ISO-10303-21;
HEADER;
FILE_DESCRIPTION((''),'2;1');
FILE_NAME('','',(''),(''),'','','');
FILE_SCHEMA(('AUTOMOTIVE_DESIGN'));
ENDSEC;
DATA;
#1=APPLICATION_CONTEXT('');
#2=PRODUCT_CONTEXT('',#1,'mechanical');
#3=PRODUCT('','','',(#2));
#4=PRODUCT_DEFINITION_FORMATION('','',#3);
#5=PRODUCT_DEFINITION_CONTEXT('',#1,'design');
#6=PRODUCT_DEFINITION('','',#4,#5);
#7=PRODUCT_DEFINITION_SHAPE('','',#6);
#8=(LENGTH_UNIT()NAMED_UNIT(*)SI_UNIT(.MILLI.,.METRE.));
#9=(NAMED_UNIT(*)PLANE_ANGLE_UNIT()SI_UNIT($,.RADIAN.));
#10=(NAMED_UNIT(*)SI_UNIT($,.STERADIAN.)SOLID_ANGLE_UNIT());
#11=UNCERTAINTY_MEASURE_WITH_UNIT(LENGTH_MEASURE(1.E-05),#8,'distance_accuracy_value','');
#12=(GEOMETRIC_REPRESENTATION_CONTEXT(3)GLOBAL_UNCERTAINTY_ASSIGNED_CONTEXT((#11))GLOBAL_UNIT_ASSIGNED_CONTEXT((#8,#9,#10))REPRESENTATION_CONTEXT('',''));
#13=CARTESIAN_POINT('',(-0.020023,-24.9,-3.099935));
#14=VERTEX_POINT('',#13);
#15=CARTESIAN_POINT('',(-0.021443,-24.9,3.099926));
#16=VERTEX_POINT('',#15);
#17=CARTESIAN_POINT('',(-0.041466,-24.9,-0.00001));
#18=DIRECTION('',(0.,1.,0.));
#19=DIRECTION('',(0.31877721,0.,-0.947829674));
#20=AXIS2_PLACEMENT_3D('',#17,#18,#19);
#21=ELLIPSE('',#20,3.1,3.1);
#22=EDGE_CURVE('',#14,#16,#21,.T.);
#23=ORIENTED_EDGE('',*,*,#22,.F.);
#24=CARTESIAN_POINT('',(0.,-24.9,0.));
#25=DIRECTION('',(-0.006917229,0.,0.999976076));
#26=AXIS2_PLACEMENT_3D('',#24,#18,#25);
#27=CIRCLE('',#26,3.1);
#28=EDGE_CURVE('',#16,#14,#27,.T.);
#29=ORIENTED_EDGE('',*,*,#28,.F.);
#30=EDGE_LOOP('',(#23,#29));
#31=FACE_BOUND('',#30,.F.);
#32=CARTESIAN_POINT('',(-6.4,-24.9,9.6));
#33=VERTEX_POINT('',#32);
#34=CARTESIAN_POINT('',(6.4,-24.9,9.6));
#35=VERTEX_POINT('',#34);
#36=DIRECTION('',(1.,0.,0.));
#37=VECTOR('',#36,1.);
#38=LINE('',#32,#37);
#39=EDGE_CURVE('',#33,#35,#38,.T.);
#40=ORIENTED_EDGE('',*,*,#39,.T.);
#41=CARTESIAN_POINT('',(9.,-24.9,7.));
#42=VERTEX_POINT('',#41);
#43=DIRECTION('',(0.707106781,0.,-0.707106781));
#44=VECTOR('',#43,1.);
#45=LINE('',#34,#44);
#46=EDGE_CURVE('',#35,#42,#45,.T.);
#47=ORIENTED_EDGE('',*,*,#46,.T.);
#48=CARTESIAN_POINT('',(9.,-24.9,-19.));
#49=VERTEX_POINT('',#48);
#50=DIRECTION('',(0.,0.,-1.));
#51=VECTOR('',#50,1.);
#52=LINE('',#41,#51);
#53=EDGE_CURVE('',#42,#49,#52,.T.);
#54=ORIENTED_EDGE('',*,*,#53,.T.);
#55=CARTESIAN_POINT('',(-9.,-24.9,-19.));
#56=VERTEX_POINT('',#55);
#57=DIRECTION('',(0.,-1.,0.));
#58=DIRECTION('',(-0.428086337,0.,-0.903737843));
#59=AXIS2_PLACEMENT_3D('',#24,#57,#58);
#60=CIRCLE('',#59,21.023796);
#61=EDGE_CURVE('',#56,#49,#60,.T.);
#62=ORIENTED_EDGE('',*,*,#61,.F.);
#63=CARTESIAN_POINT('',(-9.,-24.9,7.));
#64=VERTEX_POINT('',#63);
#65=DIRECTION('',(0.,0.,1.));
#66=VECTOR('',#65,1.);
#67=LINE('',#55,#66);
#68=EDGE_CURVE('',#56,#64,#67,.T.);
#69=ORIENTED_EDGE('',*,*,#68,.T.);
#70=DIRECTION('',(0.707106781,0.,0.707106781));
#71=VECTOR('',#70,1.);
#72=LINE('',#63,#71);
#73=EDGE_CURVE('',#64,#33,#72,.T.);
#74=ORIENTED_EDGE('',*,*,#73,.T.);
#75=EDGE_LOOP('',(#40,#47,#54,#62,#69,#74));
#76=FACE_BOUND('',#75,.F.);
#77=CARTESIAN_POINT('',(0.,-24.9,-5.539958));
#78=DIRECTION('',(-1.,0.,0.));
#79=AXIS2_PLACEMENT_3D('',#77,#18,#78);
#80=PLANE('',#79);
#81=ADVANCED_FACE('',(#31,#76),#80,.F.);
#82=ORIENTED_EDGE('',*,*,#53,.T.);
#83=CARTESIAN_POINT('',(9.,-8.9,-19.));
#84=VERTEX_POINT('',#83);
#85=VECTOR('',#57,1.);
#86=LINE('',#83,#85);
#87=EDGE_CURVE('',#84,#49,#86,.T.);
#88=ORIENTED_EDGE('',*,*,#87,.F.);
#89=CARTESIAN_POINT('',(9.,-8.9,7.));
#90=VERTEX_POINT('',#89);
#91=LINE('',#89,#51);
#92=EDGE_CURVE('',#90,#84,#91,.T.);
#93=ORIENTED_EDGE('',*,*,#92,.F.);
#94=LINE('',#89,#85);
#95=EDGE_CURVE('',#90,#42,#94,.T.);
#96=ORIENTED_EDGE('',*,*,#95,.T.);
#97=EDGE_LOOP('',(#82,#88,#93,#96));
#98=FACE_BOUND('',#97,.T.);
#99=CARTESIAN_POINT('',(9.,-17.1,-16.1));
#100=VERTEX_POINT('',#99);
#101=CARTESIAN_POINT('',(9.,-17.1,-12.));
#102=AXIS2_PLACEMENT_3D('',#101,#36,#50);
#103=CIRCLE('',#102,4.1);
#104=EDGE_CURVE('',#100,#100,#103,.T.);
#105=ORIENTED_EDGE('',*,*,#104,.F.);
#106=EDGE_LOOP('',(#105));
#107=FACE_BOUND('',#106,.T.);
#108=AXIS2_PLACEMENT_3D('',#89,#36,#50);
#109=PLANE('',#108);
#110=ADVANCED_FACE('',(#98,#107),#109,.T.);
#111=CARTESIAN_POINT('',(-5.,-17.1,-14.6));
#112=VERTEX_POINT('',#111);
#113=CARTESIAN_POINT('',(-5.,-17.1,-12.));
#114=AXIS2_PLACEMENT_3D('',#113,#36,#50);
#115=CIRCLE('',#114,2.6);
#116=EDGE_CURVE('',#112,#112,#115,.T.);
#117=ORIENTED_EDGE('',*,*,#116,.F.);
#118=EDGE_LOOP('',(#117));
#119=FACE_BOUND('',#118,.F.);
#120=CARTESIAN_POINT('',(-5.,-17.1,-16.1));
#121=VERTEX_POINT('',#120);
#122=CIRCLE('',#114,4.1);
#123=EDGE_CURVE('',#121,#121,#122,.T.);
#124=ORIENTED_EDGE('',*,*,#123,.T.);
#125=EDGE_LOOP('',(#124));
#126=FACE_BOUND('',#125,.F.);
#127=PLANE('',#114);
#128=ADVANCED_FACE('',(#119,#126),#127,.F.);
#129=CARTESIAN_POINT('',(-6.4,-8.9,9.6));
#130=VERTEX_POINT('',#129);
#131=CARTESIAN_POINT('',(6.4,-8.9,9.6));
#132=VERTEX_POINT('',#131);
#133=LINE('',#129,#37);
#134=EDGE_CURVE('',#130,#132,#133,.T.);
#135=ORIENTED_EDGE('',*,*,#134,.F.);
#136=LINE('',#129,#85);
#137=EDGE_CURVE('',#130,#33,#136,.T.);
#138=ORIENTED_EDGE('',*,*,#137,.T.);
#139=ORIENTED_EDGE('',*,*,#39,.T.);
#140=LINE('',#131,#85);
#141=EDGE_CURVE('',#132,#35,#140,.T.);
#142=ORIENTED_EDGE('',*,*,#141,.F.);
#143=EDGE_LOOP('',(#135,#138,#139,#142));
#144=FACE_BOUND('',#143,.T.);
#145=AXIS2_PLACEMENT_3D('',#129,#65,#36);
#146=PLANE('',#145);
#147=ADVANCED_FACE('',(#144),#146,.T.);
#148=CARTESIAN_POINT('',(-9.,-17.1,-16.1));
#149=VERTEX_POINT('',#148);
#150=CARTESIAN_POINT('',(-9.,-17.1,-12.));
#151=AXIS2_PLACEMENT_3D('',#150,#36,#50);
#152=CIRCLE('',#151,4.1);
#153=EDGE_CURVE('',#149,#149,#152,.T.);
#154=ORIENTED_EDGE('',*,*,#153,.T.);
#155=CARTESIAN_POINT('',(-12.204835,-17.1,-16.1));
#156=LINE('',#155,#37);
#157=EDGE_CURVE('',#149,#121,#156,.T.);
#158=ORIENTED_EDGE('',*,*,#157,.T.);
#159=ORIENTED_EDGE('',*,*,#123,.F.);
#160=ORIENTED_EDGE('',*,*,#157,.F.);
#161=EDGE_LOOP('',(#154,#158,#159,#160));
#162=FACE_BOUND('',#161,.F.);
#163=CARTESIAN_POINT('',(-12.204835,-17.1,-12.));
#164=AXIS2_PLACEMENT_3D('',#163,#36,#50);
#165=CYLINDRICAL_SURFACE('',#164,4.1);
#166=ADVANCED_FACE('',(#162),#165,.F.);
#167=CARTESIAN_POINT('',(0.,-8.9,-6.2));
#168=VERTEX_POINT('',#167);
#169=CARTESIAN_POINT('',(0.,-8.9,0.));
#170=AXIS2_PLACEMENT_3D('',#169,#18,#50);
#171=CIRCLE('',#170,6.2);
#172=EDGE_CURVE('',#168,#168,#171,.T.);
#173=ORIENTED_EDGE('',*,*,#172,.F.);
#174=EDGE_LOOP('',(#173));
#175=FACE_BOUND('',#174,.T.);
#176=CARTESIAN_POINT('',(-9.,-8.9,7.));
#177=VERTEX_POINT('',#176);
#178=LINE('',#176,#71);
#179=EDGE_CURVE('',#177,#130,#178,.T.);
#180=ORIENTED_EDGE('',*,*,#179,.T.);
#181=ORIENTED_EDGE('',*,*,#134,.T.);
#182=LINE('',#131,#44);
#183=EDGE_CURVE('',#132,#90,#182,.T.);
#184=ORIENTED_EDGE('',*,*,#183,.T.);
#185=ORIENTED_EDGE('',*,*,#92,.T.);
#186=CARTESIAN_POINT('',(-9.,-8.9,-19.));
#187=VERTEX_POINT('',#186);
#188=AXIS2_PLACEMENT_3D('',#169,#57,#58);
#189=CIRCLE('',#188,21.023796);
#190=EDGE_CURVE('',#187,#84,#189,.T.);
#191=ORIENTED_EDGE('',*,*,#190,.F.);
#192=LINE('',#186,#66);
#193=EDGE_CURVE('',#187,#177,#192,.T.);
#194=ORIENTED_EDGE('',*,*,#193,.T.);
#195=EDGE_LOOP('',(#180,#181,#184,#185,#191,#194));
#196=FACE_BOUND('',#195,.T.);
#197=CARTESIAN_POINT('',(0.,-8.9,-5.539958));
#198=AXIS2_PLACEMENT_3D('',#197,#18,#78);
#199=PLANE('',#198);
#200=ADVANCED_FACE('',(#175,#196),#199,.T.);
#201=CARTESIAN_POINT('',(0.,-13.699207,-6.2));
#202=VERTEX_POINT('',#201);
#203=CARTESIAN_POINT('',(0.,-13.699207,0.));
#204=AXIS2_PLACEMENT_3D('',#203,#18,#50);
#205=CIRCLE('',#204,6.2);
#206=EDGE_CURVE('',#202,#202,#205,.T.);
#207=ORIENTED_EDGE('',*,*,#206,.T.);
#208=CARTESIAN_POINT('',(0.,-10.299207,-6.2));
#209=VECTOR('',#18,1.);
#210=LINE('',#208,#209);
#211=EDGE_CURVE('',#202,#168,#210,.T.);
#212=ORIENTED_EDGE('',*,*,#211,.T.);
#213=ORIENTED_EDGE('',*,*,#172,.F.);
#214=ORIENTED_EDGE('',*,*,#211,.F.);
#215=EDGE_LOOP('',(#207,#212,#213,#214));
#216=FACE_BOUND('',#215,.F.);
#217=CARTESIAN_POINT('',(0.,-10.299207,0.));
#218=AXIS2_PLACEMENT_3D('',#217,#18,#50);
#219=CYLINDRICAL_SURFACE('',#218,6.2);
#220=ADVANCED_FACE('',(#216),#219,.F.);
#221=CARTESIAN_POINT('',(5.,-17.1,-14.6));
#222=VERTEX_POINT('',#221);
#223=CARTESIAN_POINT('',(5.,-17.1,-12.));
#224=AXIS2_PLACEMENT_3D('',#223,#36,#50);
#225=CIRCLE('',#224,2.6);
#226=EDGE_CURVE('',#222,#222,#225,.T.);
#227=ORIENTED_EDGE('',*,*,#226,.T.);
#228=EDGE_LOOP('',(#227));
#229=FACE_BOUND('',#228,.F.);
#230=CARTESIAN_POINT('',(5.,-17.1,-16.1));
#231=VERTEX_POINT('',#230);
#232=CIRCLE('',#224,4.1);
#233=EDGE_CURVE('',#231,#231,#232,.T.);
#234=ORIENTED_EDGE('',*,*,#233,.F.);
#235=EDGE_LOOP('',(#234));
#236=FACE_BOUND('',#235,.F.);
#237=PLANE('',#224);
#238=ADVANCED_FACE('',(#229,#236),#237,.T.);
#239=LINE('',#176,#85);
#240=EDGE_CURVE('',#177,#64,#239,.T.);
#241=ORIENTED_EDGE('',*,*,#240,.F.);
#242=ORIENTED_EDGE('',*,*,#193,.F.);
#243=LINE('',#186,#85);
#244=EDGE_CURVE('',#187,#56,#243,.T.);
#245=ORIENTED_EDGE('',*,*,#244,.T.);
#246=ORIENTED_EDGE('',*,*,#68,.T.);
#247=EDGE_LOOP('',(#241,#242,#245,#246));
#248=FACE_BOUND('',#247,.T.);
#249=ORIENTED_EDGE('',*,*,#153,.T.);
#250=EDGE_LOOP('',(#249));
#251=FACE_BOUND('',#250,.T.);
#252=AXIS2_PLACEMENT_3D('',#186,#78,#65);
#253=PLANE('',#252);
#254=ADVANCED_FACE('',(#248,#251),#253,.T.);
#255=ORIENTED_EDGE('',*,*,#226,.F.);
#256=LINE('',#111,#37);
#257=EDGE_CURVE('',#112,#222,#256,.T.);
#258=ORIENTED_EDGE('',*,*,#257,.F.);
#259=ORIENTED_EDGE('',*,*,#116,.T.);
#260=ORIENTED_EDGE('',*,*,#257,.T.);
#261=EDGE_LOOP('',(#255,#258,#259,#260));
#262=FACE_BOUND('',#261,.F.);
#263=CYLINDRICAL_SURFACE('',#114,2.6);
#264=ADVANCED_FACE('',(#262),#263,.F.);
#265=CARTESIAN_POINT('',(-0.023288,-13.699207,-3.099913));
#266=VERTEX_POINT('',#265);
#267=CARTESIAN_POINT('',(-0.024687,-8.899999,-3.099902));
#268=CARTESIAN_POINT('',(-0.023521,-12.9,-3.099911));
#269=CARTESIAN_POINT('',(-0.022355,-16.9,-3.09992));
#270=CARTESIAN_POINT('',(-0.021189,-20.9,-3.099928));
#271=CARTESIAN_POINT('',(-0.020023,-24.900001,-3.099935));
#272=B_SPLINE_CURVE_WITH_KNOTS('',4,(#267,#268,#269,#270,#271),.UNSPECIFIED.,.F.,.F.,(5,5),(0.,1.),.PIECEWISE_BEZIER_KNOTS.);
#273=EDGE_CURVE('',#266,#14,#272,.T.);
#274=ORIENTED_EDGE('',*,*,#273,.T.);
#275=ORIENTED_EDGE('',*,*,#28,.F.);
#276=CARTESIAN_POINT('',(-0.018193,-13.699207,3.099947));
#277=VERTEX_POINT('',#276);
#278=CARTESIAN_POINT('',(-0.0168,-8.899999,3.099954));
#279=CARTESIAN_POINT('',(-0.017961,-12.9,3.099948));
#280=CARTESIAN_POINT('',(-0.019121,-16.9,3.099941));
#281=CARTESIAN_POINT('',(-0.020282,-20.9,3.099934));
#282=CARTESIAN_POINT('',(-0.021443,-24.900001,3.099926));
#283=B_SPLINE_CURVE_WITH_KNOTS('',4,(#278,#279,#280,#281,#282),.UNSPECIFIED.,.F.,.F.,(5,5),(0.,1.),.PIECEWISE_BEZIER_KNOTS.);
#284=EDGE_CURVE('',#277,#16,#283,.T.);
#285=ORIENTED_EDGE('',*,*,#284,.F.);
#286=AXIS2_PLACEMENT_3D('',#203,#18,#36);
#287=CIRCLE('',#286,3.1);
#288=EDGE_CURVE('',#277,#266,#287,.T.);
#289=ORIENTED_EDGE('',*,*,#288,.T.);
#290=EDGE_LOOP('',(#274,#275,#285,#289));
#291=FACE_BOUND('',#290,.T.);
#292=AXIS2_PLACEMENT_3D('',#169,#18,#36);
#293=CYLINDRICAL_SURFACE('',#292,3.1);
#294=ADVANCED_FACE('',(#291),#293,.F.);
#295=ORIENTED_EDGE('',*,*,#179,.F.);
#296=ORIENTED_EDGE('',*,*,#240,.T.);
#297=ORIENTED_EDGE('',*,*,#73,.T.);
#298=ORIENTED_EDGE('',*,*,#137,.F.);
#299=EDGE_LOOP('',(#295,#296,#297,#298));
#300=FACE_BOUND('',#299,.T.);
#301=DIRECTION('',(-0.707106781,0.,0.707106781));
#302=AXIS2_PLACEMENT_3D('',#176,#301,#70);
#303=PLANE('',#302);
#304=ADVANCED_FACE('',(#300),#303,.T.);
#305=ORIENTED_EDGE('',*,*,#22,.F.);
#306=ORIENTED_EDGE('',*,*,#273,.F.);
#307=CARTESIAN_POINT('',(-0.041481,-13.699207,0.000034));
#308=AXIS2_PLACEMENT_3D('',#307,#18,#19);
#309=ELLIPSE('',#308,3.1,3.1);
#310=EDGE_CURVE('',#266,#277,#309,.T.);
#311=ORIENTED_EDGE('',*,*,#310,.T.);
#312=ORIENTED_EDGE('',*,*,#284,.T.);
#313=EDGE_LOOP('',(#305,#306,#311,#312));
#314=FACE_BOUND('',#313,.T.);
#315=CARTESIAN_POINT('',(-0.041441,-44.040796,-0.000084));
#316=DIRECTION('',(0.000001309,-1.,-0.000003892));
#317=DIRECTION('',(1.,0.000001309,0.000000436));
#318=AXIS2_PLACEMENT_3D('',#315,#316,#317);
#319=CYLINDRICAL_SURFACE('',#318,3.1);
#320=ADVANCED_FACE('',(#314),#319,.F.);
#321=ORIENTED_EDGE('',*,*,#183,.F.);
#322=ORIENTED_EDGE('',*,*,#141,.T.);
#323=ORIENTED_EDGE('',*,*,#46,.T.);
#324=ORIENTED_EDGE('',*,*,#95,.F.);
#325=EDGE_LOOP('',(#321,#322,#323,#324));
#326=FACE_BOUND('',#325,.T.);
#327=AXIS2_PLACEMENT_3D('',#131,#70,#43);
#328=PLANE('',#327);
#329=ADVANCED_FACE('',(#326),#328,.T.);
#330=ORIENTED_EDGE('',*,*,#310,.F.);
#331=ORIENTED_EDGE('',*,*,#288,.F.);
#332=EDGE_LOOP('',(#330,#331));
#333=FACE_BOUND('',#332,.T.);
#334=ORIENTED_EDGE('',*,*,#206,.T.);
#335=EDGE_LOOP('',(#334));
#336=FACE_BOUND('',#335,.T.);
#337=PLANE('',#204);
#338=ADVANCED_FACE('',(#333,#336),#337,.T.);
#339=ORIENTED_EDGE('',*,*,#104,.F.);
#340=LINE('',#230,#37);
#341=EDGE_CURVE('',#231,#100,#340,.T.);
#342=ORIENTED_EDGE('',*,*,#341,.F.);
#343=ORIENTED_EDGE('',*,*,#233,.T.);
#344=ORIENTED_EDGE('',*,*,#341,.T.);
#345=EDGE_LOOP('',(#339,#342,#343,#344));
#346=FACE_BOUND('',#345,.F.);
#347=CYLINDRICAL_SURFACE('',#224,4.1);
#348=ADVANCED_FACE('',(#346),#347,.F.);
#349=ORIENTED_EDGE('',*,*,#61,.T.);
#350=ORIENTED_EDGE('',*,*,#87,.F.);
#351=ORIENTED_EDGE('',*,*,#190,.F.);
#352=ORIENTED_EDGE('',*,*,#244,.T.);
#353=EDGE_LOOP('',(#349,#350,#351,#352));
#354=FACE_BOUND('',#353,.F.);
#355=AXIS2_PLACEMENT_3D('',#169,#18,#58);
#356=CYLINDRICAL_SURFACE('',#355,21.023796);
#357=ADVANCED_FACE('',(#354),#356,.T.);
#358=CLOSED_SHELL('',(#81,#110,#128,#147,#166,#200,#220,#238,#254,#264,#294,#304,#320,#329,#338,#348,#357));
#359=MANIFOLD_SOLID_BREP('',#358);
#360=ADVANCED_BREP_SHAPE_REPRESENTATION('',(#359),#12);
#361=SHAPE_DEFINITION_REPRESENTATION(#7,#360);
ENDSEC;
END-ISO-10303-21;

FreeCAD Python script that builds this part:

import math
import FreeCAD as App
import Part
import Sketcher
Q = App.Units.Quantity

doc = App.newDocument("Part")
body = doc.addObject("PartDesign::Body", "Body")

# Sketch on YZ plane
sketch1 = body.newObject("Sketcher::SketchObject", "Sketch")
sketch1.AttachmentSupport = (doc.getObject("YZ_Plane"), [""])
sketch1.MapMode = "FlatFace"
sketch1.addGeometry([
    Part.LineSegment(App.Vector(-9.299207, -2.5, 0), App.Vector(-9.299207, -6.2, 0)),
    Part.LineSegment(App.Vector(-9.299207, -6.2, 0), App.Vector(-2.499207, -6.2, 0)),
    Part.LineSegment(App.Vector(-2.499207, -6.2, 0), App.Vector(-2.499207, -2.5, 0)),
    Part.LineSegment(App.Vector(-2.499207, -2.5, 0), App.Vector(-9.299207, -2.5, 0)),
], False)
sketch1.addConstraint([
    Sketcher.Constraint("Coincident", 0, 2, 1, 1),
    Sketcher.Constraint("Coincident", 1, 2, 2, 1),
    Sketcher.Constraint("Coincident", 2, 2, 3, 1),
    Sketcher.Constraint("Coincident", 3, 2, 0, 1),
    Sketcher.Constraint("Vertical", 0),
    Sketcher.Constraint("Horizontal", 1),
    Sketcher.Constraint("Vertical", 2),
    Sketcher.Constraint("Horizontal", 3),
    Sketcher.Constraint("DistanceX", 1, 1, 1, 2, Q("6.8 mm")),
    Sketcher.Constraint("DistanceY", 0, 2, 0, 1, Q("3.7 mm")),
    Sketcher.Constraint("DistanceY", 0, 2, -1, 1, Q("6.2 mm")),
    Sketcher.Constraint("DistanceX", 0, 2, -1, 1, Q("9.299207 mm")),
])
revolution = body.newObject("PartDesign::Revolution", "Revolution")
revolution.Profile = sketch1
revolution.ReferenceAxis = (sketch1, ["H_Axis"])
revolution.Angle = 360
body2 = doc.addObject("PartDesign::Body", "Body001")
doc.recompute()

body.Placement = App.Placement(App.Vector(0, -4.4, 0), App.Rotation(App.Vector(0, 0, 1), 0))
boolean = body2.newObject("PartDesign::Boolean", "Boolean")
boolean.Type = "Fuse"
boolean.addObjects([body])
body3 = doc.addObject("PartDesign::Body", "Body002")

# Sketch on XY plane
sketch2 = body3.newObject("Sketcher::SketchObject", "Sketch001")
sketch2.AttachmentSupport = (doc.getObject("XY_Plane002"), [""])
sketch2.MapMode = "FlatFace"
sketch2.addGeometry(Part.Circle(App.Vector(0, 0, 0), App.Vector(0, 0, 1), 3.1), False)
sketch2.addConstraint([
    Sketcher.Constraint("Coincident", 0, 3, -1, 1),
    Sketcher.Constraint("Diameter", 0, Q("6.2 mm")),
])
pad1 = body3.newObject("PartDesign::Pad", "Pad")
pad1.Profile = sketch2
pad1.Length = 44
body4 = doc.addObject("PartDesign::Body", "Body003")
doc.recompute()

body3.Placement = App.Placement(App.Vector(0, 0, 0), App.Rotation(App.Vector(1, 0, 0), 270.000223))
boolean2 = body4.newObject("PartDesign::Boolean", "Boolean001")
boolean2.Type = "Fuse"
boolean2.addObjects([body3])
body5 = doc.addObject("PartDesign::Body", "Body004")
doc.recompute()

body4.Placement = App.Placement(App.Vector(0, 0, 0), App.Rotation(App.Vector(0, 1, 0), 359.999975))
boolean3 = body5.newObject("PartDesign::Boolean", "Boolean002")
boolean3.Type = "Fuse"
boolean3.addObjects([body4])
body6 = doc.addObject("PartDesign::Body", "Body005")
doc.recompute()

body5.Placement = App.Placement(App.Vector(-0.041441, -44.040796, -0.000084), App.Rotation(App.Vector(0, 0, 1), 0.000075))
boolean4 = body6.newObject("PartDesign::Boolean", "Boolean003")
boolean4.Type = "Fuse"
boolean4.addObjects([body5])
body7 = doc.addObject("PartDesign::Body", "Body006")

# Sketch on XZ plane
sketch3 = body7.newObject("Sketcher::SketchObject", "Sketch002")
sketch3.AttachmentSupport = (doc.getObject("XZ_Plane006"), [""])
sketch3.MapMode = "FlatFace"
sketch3.addGeometry([
    Part.LineSegment(App.Vector(-12.204835, 0, 0), App.Vector(-12.204835, -4.1, 0)),  # 0
    Part.LineSegment(App.Vector(-12.204835, -4.1, 0), App.Vector(-5, -4.1, 0)),  # 1
    Part.LineSegment(App.Vector(-5, -4.1, 0), App.Vector(-5, -2.6, 0)),  # 2
    Part.LineSegment(App.Vector(-5, -2.6, 0), App.Vector(5, -2.6, 0)),  # 3
    Part.LineSegment(App.Vector(5, -2.6, 0), App.Vector(5, -4.1, 0)),  # 4
    Part.LineSegment(App.Vector(5, -4.1, 0), App.Vector(12.102632, -4.1, 0)),  # 5
    Part.LineSegment(App.Vector(12.102632, -4.1, 0), App.Vector(12.102632, 0, 0)),  # 6
    Part.LineSegment(App.Vector(12.102632, 0, 0), App.Vector(-12.204835, 0, 0)),  # 7
], False)
sketch3.addConstraint([
    Sketcher.Constraint("Coincident", 0, 2, 1, 1),
    Sketcher.Constraint("Coincident", 1, 2, 2, 1),
    Sketcher.Constraint("Coincident", 2, 2, 3, 1),
    Sketcher.Constraint("Coincident", 3, 2, 4, 1),
    Sketcher.Constraint("Coincident", 4, 2, 5, 1),
    Sketcher.Constraint("Coincident", 5, 2, 6, 1),
    Sketcher.Constraint("Coincident", 6, 2, 7, 1),
    Sketcher.Constraint("Coincident", 7, 2, 0, 1),
    Sketcher.Constraint("Vertical", 0),
    Sketcher.Constraint("Horizontal", 1),
    Sketcher.Constraint("Vertical", 2),
    Sketcher.Constraint("Horizontal", 3),
    Sketcher.Constraint("Vertical", 4),
    Sketcher.Constraint("Horizontal", 5),
    Sketcher.Constraint("Vertical", 6),
    Sketcher.Constraint("Horizontal", 7),
    Sketcher.Constraint("Symmetric", 1, 2, 4, 2, -2),
    Sketcher.Constraint("PointOnObject", 6, 2, -1),
    Sketcher.Constraint("DistanceX", 3, 1, 3, 2, Q("10 mm")),
    Sketcher.Constraint("DistanceY", 0, 2, 0, 1, Q("4.1 mm")),
    Sketcher.Constraint("DistanceY", 2, 1, 2, 2, Q("1.5 mm")),
    Sketcher.Constraint("DistanceX", 5, 1, 5, 2, Q("7.102632 mm")),
    Sketcher.Constraint("DistanceX", 1, 1, 1, 2, Q("7.204835 mm")),
])
revolution2 = body7.newObject("PartDesign::Revolution", "Revolution001")
revolution2.Profile = sketch3
revolution2.ReferenceAxis = (sketch3, ["H_Axis"])
revolution2.Angle = 360
body8 = doc.addObject("PartDesign::Body", "Body007")
doc.recompute()

body7.Placement = App.Placement(App.Vector(0, -17.1, -12), App.Rotation(App.Vector(0, 0, 1), 0))
boolean5 = body8.newObject("PartDesign::Boolean", "Boolean004")
boolean5.Type = "Fuse"
boolean5.addObjects([body7])
body9 = doc.addObject("PartDesign::Body", "Body008")

# Sketch on XZ plane
sketch4 = body9.newObject("Sketcher::SketchObject", "Sketch003")
sketch4.AttachmentSupport = (doc.getObject("XZ_Plane008"), [""])
sketch4.MapMode = "FlatFace"
sketch4.addGeometry([
    Part.LineSegment(App.Vector(-6.4, 9.6, 0), App.Vector(-9, 7, 0)),  # 0
    Part.LineSegment(App.Vector(-9, 7, 0), App.Vector(-9, -19, 0)),  # 1
    Part.ArcOfCircle(Part.Circle(App.Vector(0, 0, 0), App.Vector(0, 0, 1), 21.023796), math.radians(-115.346175), math.radians(-64.653825)),  # 2
    Part.LineSegment(App.Vector(9, -19, 0), App.Vector(9, 7, 0)),  # 3
    Part.LineSegment(App.Vector(9, 7, 0), App.Vector(6.4, 9.6, 0)),  # 4
    Part.LineSegment(App.Vector(6.4, 9.6, 0), App.Vector(-6.4, 9.6, 0)),  # 5
    Part.Circle(App.Vector(0, 0, 0), App.Vector(0, 0, 1), 3.1),  # 6
], False)
sketch4.addConstraint([
    Sketcher.Constraint("Coincident", 0, 2, 1, 1),
    Sketcher.Constraint("Coincident", 1, 2, 2, 1),
    Sketcher.Constraint("Coincident", 2, 2, 3, 1),
    Sketcher.Constraint("Coincident", 3, 2, 4, 1),
    Sketcher.Constraint("Coincident", 4, 2, 5, 1),
    Sketcher.Constraint("Coincident", 5, 2, 0, 1),
    Sketcher.Constraint("Vertical", 1),
    Sketcher.Constraint("Vertical", 3),
    Sketcher.Constraint("Horizontal", 5),
    Sketcher.Constraint("Coincident", 2, 3, -1, 1),
    Sketcher.Constraint("Coincident", 6, 3, -1, 1),
    Sketcher.Constraint("Symmetric", 0, 2, 3, 2, -2),
    Sketcher.Constraint("Perpendicular", 0, 4),
    Sketcher.Constraint("Equal", 0, 4),
    Sketcher.Constraint("Diameter", 6, Q("6.2 mm")),
    Sketcher.Constraint("DistanceY", 1, 2, 1, 1, Q("26 mm")),
    Sketcher.Constraint("DistanceX", 5, 2, 5, 1, Q("12.8 mm")),
    Sketcher.Constraint("DistanceX", 0, 2, -1, 1, Q("9 mm")),
    Sketcher.Constraint("DistanceY", -1, 1, 0, 2, Q("7 mm")),
])
pad2 = body9.newObject("PartDesign::Pad", "Pad001")
pad2.Profile = sketch4
pad2.Length = 16
body10 = doc.addObject("PartDesign::Body", "Body009")
doc.recompute()

body9.Placement = App.Placement(App.Vector(0, -8.9, 0), App.Rotation(App.Vector(0, 0, 1), 0))
boolean6 = body10.newObject("PartDesign::Boolean", "Boolean005")
boolean6.Type = "Fuse"
boolean6.addObjects([body9])
doc.recompute()

boolean7 = body10.newObject("PartDesign::Boolean", "Boolean006")
boolean7.Type = "Cut"
boolean7.addObjects([body8])
doc.recompute()

boolean8 = body10.newObject("PartDesign::Boolean", "Boolean007")
boolean8.Type = "Cut"
boolean8.addObjects([body6])
doc.recompute()

boolean9 = body10.newObject("PartDesign::Boolean", "Boolean008")
boolean9.Type = "Cut"
boolean9.addObjects([body2])

doc.recompute()
